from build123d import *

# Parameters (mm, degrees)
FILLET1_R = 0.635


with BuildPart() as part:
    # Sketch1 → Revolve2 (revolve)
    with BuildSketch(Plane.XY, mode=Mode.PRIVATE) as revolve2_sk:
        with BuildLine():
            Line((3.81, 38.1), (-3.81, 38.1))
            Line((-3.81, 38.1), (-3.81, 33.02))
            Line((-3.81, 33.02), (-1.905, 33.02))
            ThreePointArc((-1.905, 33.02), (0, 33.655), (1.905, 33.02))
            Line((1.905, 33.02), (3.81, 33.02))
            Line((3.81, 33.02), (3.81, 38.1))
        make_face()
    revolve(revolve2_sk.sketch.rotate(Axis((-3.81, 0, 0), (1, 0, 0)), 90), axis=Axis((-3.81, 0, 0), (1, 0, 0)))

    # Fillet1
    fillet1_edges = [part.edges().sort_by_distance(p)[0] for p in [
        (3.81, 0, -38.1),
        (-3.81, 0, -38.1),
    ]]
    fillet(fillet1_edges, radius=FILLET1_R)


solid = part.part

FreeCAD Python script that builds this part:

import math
import FreeCAD as App
import Part
import Sketcher
Q = App.Units.Quantity


def edges_at(feature, points):
    """Names of the edges that pass closest to the given points."""
    edges = feature.Shape.Edges
    near = lambda p: min(range(len(edges)), key=lambda i: edges[i].distToShape(Part.Vertex(*p))[0])
    return sorted({f"Edge{near(p) + 1}" for p in points})

doc = App.newDocument("Part")
body = doc.addObject("PartDesign::Body", "Body")

# Sketch on XY plane
sketch1 = body.newObject("Sketcher::SketchObject", "Sketch")
sketch1.AttachmentSupport = (doc.getObject("XY_Plane"), [""])
sketch1.MapMode = "FlatFace"
sketch1.addGeometry([
    Part.LineSegment(App.Vector(3.81, 38.1, 0), App.Vector(-3.81, 38.1, 0)),  # 0
    Part.LineSegment(App.Vector(-3.81, 38.1, 0), App.Vector(-3.81, 33.02, 0)),  # 1
    Part.LineSegment(App.Vector(-3.81, 33.02, 0), App.Vector(-1.905, 33.02, 0)),  # 2
    Part.ArcOfCircle(Part.Circle(App.Vector(0, 30.48, 0), App.Vector(0, 0, 1), 3.175), math.radians(53.130102), math.radians(126.869898)),  # 3
    Part.LineSegment(App.Vector(1.905, 33.02, 0), App.Vector(3.81, 33.02, 0)),  # 4
    Part.LineSegment(App.Vector(3.81, 33.02, 0), App.Vector(3.81, 38.1, 0)),  # 5
], False)
sketch1.addConstraint([
    Sketcher.Constraint("Coincident", 0, 2, 1, 1),
    Sketcher.Constraint("Coincident", 1, 2, 2, 1),
    Sketcher.Constraint("Coincident", 2, 2, 3, 2),
    Sketcher.Constraint("Coincident", 3, 1, 4, 1),
    Sketcher.Constraint("Coincident", 4, 2, 5, 1),
    Sketcher.Constraint("Coincident", 5, 2, 0, 1),
    Sketcher.Constraint("Horizontal", 0),
    Sketcher.Constraint("Vertical", 1),
    Sketcher.Constraint("Horizontal", 2),
    Sketcher.Constraint("Horizontal", 4),
    Sketcher.Constraint("Vertical", 5),
    Sketcher.Constraint("Symmetric", 2, 2, 3, 1, -2),
    Sketcher.Constraint("Equal", 2, 4),
    Sketcher.Constraint("DistanceX", 0, 2, 0, 1, Q("0.3 in")),
    Sketcher.Constraint("DistanceY", 1, 2, 1, 1, Q("0.2 in")),
    Sketcher.Constraint("Radius", 3, Q("0.125 in")),
    Sketcher.Constraint("DistanceY", -1, 1, 3, 3, Q("1.2 in")),
    Sketcher.Constraint("DistanceY", -1, 1, 0, 2, Q("1.5 in")),
])
revolution = body.newObject("PartDesign::Revolution", "Revolution")
revolution.Profile = sketch1
revolution.ReferenceAxis = (sketch1, ["H_Axis"])
revolution.Angle = 360
doc.recompute()

fillet = body.newObject("PartDesign::Fillet", "Fillet")
fillet.Base = (revolution, edges_at(revolution, [(3.81, 0, -38.1), (-3.81, 0, -38.1)]))
fillet.Radius = Q("0.025 in")

doc.recompute()
